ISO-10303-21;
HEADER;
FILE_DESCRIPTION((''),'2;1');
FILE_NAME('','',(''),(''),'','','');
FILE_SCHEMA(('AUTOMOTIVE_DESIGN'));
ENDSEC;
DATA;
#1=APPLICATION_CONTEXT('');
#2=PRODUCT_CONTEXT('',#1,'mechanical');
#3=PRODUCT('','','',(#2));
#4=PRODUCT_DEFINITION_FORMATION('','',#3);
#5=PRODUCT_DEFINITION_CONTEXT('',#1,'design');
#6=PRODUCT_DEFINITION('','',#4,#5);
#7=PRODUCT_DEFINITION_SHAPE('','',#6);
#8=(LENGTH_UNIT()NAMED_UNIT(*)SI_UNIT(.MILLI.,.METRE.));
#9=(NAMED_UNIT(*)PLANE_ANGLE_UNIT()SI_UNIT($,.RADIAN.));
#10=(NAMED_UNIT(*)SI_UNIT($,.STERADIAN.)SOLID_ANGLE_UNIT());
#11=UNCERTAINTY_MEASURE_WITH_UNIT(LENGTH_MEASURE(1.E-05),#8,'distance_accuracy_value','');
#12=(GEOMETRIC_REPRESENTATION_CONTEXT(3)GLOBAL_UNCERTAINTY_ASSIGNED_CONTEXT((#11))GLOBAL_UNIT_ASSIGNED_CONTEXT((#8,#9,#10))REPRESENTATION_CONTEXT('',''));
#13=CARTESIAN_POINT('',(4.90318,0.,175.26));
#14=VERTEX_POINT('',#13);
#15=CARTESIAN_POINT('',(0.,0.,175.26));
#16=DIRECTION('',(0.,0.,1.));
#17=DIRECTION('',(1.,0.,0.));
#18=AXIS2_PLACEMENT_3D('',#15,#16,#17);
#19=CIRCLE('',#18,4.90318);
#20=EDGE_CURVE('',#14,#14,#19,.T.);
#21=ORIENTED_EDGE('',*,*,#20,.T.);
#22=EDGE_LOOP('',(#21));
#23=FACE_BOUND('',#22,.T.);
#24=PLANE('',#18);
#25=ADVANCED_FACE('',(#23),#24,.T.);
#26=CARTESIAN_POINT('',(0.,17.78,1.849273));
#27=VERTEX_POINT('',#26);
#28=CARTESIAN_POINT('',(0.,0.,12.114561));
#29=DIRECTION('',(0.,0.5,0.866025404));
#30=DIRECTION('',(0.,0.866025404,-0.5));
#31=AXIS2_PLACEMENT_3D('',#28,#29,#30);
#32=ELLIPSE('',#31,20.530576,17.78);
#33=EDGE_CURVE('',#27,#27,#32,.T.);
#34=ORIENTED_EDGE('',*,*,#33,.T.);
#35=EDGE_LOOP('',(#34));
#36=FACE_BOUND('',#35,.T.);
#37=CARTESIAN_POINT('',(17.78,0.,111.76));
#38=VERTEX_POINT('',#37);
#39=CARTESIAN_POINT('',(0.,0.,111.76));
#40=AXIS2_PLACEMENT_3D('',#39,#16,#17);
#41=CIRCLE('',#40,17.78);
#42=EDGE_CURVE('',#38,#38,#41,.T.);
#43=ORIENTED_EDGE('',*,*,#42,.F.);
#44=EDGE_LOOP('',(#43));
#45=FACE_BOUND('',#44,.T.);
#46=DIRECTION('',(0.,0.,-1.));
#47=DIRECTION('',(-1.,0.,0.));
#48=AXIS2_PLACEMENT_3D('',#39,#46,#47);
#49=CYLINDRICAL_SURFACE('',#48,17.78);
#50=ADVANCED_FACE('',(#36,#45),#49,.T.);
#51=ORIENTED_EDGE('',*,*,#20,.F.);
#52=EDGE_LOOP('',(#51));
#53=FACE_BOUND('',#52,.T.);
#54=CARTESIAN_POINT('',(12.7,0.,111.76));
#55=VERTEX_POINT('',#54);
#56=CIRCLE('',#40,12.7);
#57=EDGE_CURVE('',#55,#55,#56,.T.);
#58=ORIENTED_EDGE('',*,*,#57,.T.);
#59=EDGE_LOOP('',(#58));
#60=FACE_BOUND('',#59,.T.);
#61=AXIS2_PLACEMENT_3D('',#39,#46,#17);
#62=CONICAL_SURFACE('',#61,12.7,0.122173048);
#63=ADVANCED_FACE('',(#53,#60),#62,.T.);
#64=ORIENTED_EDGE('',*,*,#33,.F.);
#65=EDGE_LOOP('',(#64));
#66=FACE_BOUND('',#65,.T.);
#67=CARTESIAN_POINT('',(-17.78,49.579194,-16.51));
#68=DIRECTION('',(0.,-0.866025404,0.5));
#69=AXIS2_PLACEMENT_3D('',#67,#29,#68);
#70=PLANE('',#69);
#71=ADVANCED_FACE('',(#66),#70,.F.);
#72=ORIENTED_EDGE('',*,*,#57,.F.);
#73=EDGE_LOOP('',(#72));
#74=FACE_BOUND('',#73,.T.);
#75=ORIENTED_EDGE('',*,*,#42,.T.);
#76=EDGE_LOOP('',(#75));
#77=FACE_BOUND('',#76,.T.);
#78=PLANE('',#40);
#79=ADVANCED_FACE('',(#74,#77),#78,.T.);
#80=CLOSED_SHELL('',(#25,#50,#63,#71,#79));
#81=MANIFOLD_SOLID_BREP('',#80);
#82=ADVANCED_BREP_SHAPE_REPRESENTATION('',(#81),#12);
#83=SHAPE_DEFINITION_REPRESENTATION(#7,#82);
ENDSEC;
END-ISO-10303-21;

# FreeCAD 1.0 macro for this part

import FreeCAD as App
import Part
import Sketcher
from FreeCAD import Vector
Q = App.Units.Quantity

doc = App.newDocument("Part")
body = doc.addObject("PartDesign::Body", "Body")

# Sketch on XY plane
sketch1 = doc.addObject("Sketcher::SketchObject", "Sketch")
body.addObject(sketch1)
sketch1.AttachmentSupport = (doc.XY_Plane, [""])
sketch1.MapMode = "FlatFace"
sketch1.addGeometry(Part.Circle(Vector(0, 0, 0), Vector(0, 0, 1), 17.78), False)
sketch1.addConstraint([
    Sketcher.Constraint("Coincident", 0, 3, -1, 1),
    Sketcher.Constraint("Diameter", 0, Q("1.4 in")),
])
pad1 = doc.addObject("PartDesign::Pad", "Pad")
body.addObject(pad1)
pad1.Profile = sketch1
pad1.Length = Q("4.4 in")

# Sketch on XY plane
sketch2 = doc.addObject("Sketcher::SketchObject", "Sketch001")
body.addObject(sketch2)
sketch2.AttachmentSupport = (doc.XY_Plane, [""])
sketch2.MapMode = "FlatFace"
sketch2.AttachmentOffset = App.Placement(Vector(0, 0, 4.4 * 25.4), App.Rotation())
sketch2.addGeometry(Part.Circle(Vector(0, 0, 0), Vector(0, 0, 1), 12.7), False)
sketch2.addConstraint([
    Sketcher.Constraint("Coincident", 0, 3, -1, 1),
    Sketcher.Constraint("Diameter", 0, Q("1 in")),
])
pad2 = doc.addObject("PartDesign::Pad", "Pad001")
body.addObject(pad2)
pad2.Profile = sketch2
pad2.Length = Q("2.5 in")
pad2.TaperAngle = -7

# Sketch on YZ plane
sketch3 = doc.addObject("Sketcher::SketchObject", "Sketch002")
body.addObject(sketch3)
sketch3.AttachmentSupport = (doc.YZ_Plane, [""])
sketch3.MapMode = "FlatFace"
sketch3.addGeometry([
    Part.LineSegment(Vector(49.579194, -16.51, 0), Vector(-24.789597, 26.426842, 0)),
    Part.LineSegment(Vector(-24.789597, 26.426842, 0), Vector(-24.789597, -59.446842, 0)),
    Part.LineSegment(Vector(-24.789597, -59.446842, 0), Vector(49.579194, -16.51, 0)),
], False)
sketch3.addConstraint([
    Sketcher.Constraint("Coincident", 0, 2, 1, 1),
    Sketcher.Constraint("Coincident", 1, 2, 2, 1),
    Sketcher.Constraint("Coincident", 2, 2, 0, 1),
    Sketcher.Constraint("Vertical", 1),
    Sketcher.Constraint("Equal", 0, 2),
    Sketcher.Constraint("Angle", 0, Q("150 deg")),
    Sketcher.Constraint("DistanceY", 2, 2, -1, 1, Q("0.65 in")),
    Sketcher.Constraint("DistanceY", 1, 2, 1, 1, Q("85.873684 mm")),
    Sketcher.Constraint("DistanceX", 0, 2, -1, 1, Q("24.789597 mm")),
])
pocket1 = doc.addObject("PartDesign::Pocket", "Pocket")
body.addObject(pocket1)
pocket1.Profile = sketch3
pocket1.Type = "ThroughAll"
pocket1.Midplane = True

doc.recompute()
